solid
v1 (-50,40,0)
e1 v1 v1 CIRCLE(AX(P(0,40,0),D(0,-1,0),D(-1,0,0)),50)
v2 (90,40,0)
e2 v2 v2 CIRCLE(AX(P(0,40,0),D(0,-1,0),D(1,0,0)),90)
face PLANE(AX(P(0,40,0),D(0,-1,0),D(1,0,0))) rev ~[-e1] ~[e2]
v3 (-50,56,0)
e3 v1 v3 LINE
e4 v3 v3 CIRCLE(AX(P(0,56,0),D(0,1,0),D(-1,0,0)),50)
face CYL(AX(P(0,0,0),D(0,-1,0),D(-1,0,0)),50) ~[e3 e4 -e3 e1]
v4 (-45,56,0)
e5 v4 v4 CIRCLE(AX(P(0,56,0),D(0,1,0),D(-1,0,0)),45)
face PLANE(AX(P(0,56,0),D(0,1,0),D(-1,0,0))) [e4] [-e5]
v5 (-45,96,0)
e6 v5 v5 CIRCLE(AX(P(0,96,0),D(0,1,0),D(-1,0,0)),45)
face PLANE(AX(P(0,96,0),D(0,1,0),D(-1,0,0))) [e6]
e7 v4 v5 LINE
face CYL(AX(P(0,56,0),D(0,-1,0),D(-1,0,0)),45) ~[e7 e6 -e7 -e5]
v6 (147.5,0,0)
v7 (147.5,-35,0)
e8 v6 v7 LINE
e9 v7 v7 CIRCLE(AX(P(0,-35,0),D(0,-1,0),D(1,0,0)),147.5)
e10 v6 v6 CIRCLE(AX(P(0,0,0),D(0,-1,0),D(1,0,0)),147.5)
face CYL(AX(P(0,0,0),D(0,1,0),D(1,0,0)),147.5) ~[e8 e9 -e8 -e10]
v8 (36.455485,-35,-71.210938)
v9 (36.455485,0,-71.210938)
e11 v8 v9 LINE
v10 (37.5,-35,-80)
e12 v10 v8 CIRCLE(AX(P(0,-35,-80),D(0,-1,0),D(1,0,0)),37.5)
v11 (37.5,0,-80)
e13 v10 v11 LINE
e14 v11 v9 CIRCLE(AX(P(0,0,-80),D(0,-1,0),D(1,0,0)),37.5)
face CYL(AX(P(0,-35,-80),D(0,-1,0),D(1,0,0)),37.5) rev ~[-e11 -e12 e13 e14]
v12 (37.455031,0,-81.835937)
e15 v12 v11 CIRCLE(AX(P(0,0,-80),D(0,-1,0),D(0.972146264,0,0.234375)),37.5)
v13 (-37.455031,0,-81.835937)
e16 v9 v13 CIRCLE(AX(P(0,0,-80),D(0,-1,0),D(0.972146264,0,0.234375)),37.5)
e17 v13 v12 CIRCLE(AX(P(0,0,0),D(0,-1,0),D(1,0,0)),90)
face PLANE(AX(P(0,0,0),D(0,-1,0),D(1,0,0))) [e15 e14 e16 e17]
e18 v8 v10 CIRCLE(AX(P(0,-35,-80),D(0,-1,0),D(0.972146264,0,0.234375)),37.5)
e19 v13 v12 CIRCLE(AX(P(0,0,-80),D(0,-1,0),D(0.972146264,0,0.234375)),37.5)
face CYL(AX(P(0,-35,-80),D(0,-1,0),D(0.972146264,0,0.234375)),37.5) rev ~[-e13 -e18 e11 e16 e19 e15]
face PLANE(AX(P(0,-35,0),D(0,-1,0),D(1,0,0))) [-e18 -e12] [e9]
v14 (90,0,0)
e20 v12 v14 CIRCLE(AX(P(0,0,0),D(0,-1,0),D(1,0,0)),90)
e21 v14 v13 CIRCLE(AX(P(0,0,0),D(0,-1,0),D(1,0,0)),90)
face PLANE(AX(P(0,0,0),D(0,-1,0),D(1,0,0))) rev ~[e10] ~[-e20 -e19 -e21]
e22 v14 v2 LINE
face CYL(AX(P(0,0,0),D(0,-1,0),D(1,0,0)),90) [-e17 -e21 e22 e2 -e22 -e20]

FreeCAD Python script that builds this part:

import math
import FreeCAD as App
import Part
import Sketcher

V = App.Vector

doc = App.newDocument("Part")
params = doc.addObject("Spreadsheet::Sheet", "Params")
for row, (alias, value) in enumerate([
    ("sketch1_diameter", "295 mm"),
    ("pad1_length", "35 mm"),
    ("sketch2_diameter", "100 mm"),
    ("pad2_length", "56 mm"),
    ("sketch3_diameter", "90 mm"),
    ("pad3_length", "40 mm"),
    ("sketch4_radius", "37.5 mm"),
    ("pocket1_length", "40 mm"),
    ("sketch5_diameter", "180 mm"),
    ("pad4_length", "40 mm"),
], start=1):
    params.set(f"A{row}", alias)
    params.set(f"B{row}", "=" + value)
    params.setAlias(f"B{row}", alias)

body = doc.addObject("PartDesign::Body", "Body")

sketch1 = body.newObject("Sketcher::SketchObject", "Sketch")
sketch1.AttachmentSupport = (doc.getObject("XZ_Plane"), [""])
sketch1.MapMode = "FlatFace"
sketch1.addGeometry(Part.Circle(V(0, 0, 0), V(0, 0, 1), 148), False)
sketch1.addConstraint(Sketcher.Constraint("Coincident", 0, 3, -1, 1))
sketch1.addConstraint(Sketcher.Constraint("Diameter", 0, 295.0))
sketch1.setExpression("Constraints[1]", "Params.sketch1_diameter")
pad1 = body.newObject("PartDesign::Pad", "Pad")
pad1.Profile = sketch1
pad1.setExpression("Length", "Params.pad1_length")

sketch2 = body.newObject("Sketcher::SketchObject", "Sketch001")
sketch2.AttachmentSupport = (doc.getObject("XZ_Plane"), [""])
sketch2.MapMode = "FlatFace"
sketch2.addGeometry(Part.Circle(V(0, 0, 0), V(0, 0, 1), 50), False)
sketch2.addConstraint(Sketcher.Constraint("Coincident", 0, 3, -1, 1))
sketch2.addConstraint(Sketcher.Constraint("Diameter", 0, 100.0))
sketch2.setExpression("Constraints[1]", "Params.sketch2_diameter")
pad2 = body.newObject("PartDesign::Pad", "Pad001")
pad2.Profile = sketch2
pad2.setExpression("Length", "Params.pad2_length")
pad2.Reversed = True

sketch3 = body.newObject("Sketcher::SketchObject", "Sketch002")
sketch3.AttachmentSupport = (doc.getObject("XZ_Plane"), [""])
sketch3.MapMode = "FlatFace"
sketch3.AttachmentOffset = App.Placement(V(0, 0, -56), App.Rotation())
sketch3.addGeometry(Part.Circle(V(0, 0, 0), V(0, 0, 1), 45), False)
sketch3.addConstraint(Sketcher.Constraint("Coincident", 0, 3, -1, 1))
sketch3.addConstraint(Sketcher.Constraint("Diameter", 0, 90.0))
sketch3.setExpression("Constraints[1]", "Params.sketch3_diameter")
pad3 = body.newObject("PartDesign::Pad", "Pad002")
pad3.Profile = sketch3
pad3.setExpression("Length", "Params.pad3_length")
pad3.Reversed = True

sketch4 = body.newObject("Sketcher::SketchObject", "Sketch003")
sketch4.AttachmentSupport = (doc.getObject("XZ_Plane"), [""])
sketch4.MapMode = "FlatFace"
sketch4.AttachmentOffset = App.Placement(V(0, 0, 35), App.Rotation())
sketch4.addGeometry(Part.ArcOfCircle(Part.Circle(V(0, -80, 0), V(0, 0, 1), 37), math.radians(0), math.radians(13.55)), False)
sketch4.addGeometry(Part.ArcOfCircle(Part.Circle(V(0, -80, 0), V(0, 0, 1), 38), math.radians(14), math.radians(360)), False)
sketch4.addConstraint(Sketcher.Constraint("Tangent", 0, 1, 1, 2))
sketch4.addConstraint(Sketcher.Constraint("Coincident", 1, 1, 0, 2))
sketch4.addConstraint(Sketcher.Constraint("PointOnObject", 0, 3, -2))
sketch4.addConstraint(Sketcher.Constraint("Horizontal", 1, 3, 0, 1))
sketch4.addConstraint(Sketcher.Constraint("Radius", 0, 37.5))
sketch4.addConstraint(Sketcher.Constraint("DistanceY", 0, 3, -1, 1, 80.0))
sketch4.addConstraint(Sketcher.Constraint("DistanceX", -1, 1, 1, 1, 36.455485))
sketch4.setExpression("Constraints[4]", "Params.sketch4_radius")
pocket1 = body.newObject("PartDesign::Pocket", "Pocket")
pocket1.Profile = sketch4
pocket1.setExpression("Length", "Params.pocket1_length")

sketch5 = body.newObject("Sketcher::SketchObject", "Sketch004")
sketch5.AttachmentSupport = (doc.getObject("XZ_Plane"), [""])
sketch5.MapMode = "FlatFace"
sketch5.addGeometry(Part.Circle(V(0, 0, 0), V(0, 0, 1), 90), False)
sketch5.addConstraint(Sketcher.Constraint("Coincident", 0, 3, -1, 1))
sketch5.addConstraint(Sketcher.Constraint("Diameter", 0, 180.0))
sketch5.setExpression("Constraints[1]", "Params.sketch5_diameter")
pad4 = body.newObject("PartDesign::Pad", "Pad003")
pad4.Profile = sketch5
pad4.setExpression("Length", "Params.pad4_length")
pad4.Reversed = True

doc.recompute()
